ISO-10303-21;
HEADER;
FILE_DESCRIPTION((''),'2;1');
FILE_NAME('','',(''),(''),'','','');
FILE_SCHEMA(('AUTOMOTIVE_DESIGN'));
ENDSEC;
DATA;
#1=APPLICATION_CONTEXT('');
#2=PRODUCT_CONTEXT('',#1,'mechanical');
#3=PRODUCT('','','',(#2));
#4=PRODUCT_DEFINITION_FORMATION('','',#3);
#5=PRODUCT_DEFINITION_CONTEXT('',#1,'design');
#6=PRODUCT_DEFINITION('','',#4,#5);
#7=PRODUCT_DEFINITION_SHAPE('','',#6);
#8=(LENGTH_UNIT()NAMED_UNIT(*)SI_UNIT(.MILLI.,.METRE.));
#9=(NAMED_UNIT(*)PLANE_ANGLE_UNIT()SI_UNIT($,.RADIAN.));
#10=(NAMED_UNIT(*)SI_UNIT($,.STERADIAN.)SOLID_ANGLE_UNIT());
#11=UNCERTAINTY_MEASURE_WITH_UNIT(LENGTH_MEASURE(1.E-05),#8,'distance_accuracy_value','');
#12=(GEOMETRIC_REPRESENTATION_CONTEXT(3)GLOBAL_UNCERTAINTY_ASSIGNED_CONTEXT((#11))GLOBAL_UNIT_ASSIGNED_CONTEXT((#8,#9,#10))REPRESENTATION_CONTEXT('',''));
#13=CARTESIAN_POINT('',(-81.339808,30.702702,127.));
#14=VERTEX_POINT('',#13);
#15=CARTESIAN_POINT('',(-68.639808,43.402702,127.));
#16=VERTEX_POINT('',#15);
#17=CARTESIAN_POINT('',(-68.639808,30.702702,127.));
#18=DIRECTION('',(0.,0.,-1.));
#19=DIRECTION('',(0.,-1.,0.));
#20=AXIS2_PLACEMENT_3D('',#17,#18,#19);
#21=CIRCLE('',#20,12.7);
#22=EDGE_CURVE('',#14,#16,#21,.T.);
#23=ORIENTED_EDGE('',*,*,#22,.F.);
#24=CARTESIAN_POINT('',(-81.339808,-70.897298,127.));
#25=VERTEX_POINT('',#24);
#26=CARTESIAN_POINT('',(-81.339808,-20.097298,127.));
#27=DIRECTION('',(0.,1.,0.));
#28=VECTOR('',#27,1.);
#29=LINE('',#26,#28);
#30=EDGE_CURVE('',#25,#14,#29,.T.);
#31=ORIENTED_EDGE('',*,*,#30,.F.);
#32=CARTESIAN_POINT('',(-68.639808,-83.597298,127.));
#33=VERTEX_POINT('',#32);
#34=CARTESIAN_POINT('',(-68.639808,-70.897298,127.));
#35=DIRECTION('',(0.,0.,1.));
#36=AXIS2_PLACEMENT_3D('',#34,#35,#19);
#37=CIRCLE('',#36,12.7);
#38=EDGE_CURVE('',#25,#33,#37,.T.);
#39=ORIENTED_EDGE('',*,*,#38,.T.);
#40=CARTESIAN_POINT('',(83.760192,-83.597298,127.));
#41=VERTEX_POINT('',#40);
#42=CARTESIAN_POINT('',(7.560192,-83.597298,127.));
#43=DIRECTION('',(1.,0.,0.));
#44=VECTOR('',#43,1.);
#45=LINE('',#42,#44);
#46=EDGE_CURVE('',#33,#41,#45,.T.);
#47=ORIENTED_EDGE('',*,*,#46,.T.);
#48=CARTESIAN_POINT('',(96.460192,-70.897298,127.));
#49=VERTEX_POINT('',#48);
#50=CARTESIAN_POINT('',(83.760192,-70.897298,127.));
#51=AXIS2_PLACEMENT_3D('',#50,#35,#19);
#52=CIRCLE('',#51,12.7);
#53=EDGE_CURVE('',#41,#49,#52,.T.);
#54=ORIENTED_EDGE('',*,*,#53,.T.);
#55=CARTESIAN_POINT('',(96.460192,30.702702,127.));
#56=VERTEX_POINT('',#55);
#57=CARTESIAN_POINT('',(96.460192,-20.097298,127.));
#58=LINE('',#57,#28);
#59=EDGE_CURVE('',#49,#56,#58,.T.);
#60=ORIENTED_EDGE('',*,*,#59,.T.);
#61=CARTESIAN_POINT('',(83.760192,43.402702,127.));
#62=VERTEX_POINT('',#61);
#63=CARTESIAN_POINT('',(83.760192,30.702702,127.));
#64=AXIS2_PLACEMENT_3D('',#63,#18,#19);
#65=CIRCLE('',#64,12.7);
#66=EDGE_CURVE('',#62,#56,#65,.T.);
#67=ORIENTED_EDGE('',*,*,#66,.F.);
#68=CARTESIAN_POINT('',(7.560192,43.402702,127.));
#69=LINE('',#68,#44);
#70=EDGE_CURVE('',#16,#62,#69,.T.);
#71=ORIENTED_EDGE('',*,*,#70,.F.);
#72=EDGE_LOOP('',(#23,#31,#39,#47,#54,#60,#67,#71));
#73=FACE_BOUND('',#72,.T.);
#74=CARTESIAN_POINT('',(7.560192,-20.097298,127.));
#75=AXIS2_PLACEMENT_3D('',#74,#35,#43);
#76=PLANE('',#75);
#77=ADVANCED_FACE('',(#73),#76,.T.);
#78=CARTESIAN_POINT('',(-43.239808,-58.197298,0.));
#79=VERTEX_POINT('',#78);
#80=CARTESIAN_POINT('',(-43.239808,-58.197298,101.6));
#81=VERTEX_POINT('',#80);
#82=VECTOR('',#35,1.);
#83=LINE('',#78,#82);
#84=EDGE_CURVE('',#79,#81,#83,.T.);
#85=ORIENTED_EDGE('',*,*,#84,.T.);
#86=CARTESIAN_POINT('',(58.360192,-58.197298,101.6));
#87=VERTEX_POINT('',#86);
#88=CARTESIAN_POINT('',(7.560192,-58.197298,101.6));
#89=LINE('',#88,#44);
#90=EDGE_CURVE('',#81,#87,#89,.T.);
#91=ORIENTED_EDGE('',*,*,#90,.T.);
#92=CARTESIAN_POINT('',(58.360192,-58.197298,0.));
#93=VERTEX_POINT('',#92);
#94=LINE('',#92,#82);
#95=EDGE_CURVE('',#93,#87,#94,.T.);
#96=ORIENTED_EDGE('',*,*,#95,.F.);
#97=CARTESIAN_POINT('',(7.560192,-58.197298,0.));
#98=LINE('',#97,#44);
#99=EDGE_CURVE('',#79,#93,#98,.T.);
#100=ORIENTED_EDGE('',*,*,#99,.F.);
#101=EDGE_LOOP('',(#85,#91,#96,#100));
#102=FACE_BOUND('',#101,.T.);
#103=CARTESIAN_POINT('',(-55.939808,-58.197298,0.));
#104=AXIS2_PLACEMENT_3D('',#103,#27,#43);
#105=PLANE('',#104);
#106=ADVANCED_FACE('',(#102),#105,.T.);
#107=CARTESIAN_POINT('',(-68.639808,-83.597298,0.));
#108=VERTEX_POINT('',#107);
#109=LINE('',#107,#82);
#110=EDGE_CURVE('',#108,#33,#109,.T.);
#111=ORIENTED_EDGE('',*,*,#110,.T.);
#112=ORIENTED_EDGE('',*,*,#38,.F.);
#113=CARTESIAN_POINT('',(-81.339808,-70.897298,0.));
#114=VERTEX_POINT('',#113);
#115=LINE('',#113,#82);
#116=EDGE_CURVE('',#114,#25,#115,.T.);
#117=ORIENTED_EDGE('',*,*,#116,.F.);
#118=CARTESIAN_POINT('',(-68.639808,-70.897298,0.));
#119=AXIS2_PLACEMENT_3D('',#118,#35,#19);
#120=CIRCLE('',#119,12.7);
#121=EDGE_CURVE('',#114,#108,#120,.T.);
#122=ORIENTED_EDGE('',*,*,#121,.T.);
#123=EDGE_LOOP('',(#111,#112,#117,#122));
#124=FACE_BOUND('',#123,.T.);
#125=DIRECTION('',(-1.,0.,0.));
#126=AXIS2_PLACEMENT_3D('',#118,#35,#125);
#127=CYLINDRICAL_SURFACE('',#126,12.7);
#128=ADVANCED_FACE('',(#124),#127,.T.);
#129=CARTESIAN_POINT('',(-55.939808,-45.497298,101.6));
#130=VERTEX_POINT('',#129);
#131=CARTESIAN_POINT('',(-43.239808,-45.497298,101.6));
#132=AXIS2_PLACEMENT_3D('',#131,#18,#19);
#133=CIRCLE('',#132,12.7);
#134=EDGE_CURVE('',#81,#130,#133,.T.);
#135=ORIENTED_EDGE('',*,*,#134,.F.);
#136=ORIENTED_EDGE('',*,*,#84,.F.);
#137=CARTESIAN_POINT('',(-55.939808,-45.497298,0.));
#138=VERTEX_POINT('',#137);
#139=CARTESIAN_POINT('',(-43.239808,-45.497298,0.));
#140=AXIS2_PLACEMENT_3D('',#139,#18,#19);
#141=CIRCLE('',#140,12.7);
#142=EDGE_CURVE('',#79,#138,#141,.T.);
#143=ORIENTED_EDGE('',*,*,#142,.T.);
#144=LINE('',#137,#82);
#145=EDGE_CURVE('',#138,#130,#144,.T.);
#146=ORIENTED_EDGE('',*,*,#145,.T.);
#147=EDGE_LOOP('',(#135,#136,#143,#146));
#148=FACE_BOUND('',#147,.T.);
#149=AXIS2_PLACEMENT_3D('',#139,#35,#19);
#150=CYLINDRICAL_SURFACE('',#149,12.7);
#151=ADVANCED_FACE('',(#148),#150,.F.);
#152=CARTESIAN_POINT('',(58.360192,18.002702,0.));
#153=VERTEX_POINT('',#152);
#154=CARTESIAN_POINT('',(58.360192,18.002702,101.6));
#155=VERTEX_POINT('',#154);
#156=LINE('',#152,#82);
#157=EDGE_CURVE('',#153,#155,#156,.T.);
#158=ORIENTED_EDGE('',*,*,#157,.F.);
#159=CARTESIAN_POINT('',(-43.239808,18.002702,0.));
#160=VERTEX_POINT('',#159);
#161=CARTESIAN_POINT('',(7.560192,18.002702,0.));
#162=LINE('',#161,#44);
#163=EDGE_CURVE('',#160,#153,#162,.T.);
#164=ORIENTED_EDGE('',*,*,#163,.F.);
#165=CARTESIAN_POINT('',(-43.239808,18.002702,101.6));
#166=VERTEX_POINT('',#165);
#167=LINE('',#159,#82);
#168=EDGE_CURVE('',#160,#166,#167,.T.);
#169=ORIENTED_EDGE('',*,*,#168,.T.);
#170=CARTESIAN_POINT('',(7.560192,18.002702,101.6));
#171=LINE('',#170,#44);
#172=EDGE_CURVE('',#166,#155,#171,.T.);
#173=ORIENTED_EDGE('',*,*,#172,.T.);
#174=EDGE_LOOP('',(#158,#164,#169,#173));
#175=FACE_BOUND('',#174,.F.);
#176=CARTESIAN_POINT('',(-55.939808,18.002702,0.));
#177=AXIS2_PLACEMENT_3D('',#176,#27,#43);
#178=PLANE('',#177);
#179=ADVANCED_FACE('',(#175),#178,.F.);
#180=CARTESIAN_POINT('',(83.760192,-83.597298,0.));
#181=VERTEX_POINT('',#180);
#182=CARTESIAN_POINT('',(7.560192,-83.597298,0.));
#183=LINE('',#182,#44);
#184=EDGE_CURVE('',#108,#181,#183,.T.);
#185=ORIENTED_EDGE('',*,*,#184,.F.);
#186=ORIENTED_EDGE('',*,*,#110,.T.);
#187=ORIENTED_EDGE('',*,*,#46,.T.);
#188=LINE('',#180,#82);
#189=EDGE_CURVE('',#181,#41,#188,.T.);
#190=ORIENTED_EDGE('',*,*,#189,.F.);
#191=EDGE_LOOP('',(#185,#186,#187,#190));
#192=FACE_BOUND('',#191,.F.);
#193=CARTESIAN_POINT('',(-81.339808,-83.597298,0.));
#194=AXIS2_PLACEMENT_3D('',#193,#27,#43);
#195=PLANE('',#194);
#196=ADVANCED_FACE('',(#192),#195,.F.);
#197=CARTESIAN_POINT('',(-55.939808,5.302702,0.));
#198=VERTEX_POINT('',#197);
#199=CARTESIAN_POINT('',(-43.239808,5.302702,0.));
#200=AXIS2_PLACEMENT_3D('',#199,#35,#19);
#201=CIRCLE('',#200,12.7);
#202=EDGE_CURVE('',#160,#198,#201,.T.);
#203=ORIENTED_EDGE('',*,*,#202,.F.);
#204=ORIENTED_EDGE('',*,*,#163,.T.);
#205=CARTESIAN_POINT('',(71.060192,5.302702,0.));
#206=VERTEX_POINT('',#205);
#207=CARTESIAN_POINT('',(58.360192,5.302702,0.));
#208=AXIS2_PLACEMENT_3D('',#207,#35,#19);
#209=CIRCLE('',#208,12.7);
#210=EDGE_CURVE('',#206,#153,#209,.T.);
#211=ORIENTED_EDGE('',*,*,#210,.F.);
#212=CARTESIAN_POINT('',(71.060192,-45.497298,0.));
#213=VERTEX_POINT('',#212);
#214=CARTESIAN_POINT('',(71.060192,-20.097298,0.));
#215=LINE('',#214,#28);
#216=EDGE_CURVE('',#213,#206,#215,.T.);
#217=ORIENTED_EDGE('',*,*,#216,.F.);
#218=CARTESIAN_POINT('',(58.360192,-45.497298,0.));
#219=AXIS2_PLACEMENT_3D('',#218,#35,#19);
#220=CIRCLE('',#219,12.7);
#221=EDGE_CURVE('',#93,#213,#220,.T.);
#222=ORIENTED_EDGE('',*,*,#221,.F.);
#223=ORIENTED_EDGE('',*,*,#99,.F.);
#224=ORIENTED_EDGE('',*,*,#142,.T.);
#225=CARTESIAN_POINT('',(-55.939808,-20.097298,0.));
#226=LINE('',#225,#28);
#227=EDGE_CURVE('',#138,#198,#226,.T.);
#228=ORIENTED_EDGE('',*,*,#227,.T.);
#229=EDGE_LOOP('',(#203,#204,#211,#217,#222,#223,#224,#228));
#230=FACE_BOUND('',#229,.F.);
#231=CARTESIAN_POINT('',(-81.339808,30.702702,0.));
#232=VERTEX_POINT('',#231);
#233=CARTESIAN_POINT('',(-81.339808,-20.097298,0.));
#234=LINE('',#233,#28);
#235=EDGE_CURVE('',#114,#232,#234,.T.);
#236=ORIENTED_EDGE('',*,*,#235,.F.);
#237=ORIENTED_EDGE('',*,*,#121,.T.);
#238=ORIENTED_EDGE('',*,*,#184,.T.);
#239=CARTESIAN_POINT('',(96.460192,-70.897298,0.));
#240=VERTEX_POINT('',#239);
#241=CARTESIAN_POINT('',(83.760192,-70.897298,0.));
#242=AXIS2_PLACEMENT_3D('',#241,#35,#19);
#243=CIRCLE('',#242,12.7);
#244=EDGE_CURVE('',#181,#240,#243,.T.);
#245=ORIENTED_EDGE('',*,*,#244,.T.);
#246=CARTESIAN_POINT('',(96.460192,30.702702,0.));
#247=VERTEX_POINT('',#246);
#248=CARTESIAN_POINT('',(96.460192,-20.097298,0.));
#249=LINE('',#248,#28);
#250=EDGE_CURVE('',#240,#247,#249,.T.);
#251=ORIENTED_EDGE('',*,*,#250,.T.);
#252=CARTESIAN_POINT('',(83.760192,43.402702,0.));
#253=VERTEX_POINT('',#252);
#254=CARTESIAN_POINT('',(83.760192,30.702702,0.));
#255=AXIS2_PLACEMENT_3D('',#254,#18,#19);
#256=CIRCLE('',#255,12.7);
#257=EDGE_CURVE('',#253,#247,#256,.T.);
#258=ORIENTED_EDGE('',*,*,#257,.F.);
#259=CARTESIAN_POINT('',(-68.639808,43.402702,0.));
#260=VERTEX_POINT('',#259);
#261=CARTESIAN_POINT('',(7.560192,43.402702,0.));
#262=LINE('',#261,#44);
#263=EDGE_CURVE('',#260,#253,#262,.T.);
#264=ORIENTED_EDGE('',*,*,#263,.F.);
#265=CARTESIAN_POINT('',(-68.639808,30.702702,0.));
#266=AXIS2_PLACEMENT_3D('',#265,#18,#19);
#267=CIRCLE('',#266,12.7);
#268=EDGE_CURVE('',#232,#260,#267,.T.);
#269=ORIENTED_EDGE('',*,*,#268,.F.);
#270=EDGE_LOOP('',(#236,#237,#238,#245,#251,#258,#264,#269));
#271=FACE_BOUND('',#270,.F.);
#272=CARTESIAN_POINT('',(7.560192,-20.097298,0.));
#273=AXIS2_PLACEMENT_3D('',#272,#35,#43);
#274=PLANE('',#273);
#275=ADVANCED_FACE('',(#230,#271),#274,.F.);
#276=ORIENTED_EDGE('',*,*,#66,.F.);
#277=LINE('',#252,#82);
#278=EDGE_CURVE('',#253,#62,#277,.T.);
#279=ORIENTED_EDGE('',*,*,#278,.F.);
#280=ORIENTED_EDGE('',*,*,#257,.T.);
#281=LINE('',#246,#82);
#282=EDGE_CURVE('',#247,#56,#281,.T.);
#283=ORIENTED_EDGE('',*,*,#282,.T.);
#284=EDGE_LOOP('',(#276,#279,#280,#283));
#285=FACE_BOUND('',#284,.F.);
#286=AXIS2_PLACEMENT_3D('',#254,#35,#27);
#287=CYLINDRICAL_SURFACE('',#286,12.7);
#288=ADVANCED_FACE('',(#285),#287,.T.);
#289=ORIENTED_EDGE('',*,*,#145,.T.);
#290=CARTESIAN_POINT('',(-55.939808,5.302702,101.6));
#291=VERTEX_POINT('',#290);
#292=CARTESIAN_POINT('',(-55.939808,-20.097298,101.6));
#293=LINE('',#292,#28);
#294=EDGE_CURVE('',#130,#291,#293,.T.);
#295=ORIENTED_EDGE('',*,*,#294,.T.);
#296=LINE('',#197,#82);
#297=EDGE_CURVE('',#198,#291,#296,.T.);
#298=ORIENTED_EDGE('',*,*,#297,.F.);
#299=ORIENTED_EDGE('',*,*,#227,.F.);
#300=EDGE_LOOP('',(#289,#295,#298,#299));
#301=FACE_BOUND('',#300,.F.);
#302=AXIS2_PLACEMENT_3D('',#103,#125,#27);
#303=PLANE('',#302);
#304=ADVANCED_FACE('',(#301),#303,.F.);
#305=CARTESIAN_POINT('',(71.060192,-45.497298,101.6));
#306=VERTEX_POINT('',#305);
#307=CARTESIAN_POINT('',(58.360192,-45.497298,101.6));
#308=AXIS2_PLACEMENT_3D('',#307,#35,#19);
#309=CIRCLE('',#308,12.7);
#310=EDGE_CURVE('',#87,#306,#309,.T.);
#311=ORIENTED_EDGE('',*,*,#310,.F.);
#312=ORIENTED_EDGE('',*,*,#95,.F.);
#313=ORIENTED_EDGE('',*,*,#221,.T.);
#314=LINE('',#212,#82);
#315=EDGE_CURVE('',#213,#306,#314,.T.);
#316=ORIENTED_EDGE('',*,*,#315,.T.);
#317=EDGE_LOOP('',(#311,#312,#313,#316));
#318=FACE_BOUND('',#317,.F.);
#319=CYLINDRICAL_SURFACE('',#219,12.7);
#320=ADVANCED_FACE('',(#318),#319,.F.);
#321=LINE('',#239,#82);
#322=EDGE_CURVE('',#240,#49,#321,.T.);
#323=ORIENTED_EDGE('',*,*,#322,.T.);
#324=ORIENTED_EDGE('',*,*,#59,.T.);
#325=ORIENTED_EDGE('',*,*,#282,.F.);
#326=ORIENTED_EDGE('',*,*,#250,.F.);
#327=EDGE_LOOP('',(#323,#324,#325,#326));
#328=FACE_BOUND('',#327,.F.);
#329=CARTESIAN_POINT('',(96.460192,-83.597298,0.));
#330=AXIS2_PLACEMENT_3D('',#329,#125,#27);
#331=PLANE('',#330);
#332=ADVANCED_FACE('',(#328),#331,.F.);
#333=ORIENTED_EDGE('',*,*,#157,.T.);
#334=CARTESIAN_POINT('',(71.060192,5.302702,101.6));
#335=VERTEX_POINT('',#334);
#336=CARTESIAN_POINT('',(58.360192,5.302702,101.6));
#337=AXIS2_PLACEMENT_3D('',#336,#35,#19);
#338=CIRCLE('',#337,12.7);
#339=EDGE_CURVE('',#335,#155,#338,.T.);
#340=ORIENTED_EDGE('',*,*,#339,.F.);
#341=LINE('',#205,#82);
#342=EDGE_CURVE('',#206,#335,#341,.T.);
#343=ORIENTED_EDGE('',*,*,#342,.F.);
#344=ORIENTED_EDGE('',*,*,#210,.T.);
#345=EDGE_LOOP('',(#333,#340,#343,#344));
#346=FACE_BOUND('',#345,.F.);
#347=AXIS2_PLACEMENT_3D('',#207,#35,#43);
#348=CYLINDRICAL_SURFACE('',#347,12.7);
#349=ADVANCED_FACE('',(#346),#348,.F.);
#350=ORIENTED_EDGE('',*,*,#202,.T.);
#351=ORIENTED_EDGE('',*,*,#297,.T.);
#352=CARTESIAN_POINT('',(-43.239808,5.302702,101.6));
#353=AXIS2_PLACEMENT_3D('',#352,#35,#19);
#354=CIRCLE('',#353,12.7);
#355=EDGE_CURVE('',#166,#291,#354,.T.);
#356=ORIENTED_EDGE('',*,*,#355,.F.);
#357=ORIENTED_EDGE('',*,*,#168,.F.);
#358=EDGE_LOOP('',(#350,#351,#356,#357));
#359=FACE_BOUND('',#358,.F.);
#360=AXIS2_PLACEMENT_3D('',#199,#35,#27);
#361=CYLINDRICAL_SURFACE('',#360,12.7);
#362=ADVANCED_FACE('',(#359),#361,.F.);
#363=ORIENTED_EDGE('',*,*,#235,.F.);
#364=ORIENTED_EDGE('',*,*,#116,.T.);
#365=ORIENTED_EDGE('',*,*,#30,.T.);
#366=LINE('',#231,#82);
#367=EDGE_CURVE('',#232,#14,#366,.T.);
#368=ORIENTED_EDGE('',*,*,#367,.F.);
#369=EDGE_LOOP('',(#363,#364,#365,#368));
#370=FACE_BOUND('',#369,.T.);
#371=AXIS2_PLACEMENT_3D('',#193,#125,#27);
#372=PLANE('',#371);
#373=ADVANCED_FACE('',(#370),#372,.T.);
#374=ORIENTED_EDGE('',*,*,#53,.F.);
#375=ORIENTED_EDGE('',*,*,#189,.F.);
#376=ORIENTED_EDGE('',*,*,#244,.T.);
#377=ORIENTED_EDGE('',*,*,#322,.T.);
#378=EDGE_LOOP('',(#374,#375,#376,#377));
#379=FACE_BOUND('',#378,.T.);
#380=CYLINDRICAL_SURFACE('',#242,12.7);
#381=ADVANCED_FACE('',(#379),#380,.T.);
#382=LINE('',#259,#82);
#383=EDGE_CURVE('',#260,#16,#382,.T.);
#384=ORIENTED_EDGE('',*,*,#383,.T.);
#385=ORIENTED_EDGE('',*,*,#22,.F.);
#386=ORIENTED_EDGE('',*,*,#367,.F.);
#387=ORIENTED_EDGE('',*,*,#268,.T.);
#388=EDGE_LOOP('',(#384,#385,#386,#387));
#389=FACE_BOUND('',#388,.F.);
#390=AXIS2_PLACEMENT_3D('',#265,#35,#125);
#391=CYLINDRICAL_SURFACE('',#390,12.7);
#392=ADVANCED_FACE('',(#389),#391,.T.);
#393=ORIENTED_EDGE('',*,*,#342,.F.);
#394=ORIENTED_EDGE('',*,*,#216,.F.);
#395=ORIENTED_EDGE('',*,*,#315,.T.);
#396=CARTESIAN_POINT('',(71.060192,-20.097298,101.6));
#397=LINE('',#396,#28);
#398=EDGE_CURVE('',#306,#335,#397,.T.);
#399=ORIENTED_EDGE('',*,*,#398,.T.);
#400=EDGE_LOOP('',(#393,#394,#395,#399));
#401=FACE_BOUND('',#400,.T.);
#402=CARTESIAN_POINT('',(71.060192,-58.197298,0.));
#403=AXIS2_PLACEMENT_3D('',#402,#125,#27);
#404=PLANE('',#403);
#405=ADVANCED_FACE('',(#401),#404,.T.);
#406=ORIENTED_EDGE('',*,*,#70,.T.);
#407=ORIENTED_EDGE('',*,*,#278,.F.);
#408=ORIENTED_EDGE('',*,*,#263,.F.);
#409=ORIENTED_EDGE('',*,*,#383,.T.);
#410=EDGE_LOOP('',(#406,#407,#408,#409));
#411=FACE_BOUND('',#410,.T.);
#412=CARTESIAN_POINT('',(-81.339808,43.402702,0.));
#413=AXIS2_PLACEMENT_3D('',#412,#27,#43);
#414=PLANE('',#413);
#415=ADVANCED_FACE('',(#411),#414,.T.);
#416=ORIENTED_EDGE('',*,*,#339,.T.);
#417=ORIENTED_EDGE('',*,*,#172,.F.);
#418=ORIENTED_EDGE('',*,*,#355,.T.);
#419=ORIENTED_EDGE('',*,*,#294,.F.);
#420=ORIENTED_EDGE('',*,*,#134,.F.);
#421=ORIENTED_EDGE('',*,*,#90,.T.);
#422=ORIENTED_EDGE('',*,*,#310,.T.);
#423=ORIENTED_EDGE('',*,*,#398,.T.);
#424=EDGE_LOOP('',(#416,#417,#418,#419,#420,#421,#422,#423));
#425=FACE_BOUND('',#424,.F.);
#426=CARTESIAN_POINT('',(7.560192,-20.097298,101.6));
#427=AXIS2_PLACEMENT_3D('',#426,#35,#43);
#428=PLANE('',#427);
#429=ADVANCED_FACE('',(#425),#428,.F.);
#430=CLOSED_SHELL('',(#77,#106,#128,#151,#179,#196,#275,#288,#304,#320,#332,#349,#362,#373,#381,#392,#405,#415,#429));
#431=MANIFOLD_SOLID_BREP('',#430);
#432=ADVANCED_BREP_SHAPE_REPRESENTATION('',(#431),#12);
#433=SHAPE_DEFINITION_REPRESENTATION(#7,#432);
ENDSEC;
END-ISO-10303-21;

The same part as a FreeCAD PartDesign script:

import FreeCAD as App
import Part
import Sketcher
Q = App.Units.Quantity


def edges_at(feature, points):
    """Names of the edges that pass closest to the given points."""
    edges = feature.Shape.Edges
    near = lambda p: min(range(len(edges)), key=lambda i: edges[i].distToShape(Part.Vertex(*p))[0])
    return sorted({f"Edge{near(p) + 1}" for p in points})

doc = App.newDocument("Part")
body = doc.addObject("PartDesign::Body", "Body")

# Sketch on XY plane
sketch1 = doc.addObject("Sketcher::SketchObject", "Sketch")
body.addObject(sketch1)
sketch1.AttachmentSupport = (doc.XY_Plane, [""])
sketch1.MapMode = "FlatFace"
sketch1.addGeometry([
    Part.LineSegment(App.Vector(-81, 43, 0), App.Vector(-81, -84, 0)),
    Part.LineSegment(App.Vector(-81, -84, 0), App.Vector(96, -84, 0)),
    Part.LineSegment(App.Vector(96, -84, 0), App.Vector(96, 43, 0)),
    Part.LineSegment(App.Vector(96, 43, 0), App.Vector(-81, 43, 0)),
], False)
sketch1.addConstraint([
    Sketcher.Constraint("Coincident", 0, 2, 1, 1),
    Sketcher.Constraint("Coincident", 1, 2, 2, 1),
    Sketcher.Constraint("Coincident", 2, 2, 3, 1),
    Sketcher.Constraint("Coincident", 3, 2, 0, 1),
    Sketcher.Constraint("Vertical", 0),
    Sketcher.Constraint("Horizontal", 1),
    Sketcher.Constraint("Vertical", 2),
    Sketcher.Constraint("Horizontal", 3),
    Sketcher.Constraint("DistanceX", 1, 1, 1, 2, Q("7 in")),
    Sketcher.Constraint("DistanceY", 0, 2, 0, 1, Q("5 in")),
    Sketcher.Constraint("DistanceY", -1, 1, 2, 2, Q("43.402702 mm")),
    Sketcher.Constraint("DistanceX", 0, 2, -1, 1, Q("81.339808 mm")),
])
pad1 = doc.addObject("PartDesign::Pad", "Pad")
body.addObject(pad1)
pad1.Profile = sketch1
pad1.Length = Q("5 in")

# Sketch on XY plane
sketch2 = doc.addObject("Sketcher::SketchObject", "Sketch001")
body.addObject(sketch2)
sketch2.AttachmentSupport = (doc.XY_Plane, [""])
sketch2.MapMode = "FlatFace"
sketch2.addGeometry([
    Part.LineSegment(App.Vector(-56, 18, 0), App.Vector(-56, -58, 0)),
    Part.LineSegment(App.Vector(-56, -58, 0), App.Vector(71, -58, 0)),
    Part.LineSegment(App.Vector(71, -58, 0), App.Vector(71, 18, 0)),
    Part.LineSegment(App.Vector(71, 18, 0), App.Vector(-56, 18, 0)),
], False)
sketch2.addConstraint([
    Sketcher.Constraint("Coincident", 0, 2, 1, 1),
    Sketcher.Constraint("Coincident", 1, 2, 2, 1),
    Sketcher.Constraint("Coincident", 2, 2, 3, 1),
    Sketcher.Constraint("Coincident", 3, 2, 0, 1),
    Sketcher.Constraint("Vertical", 0),
    Sketcher.Constraint("Horizontal", 1),
    Sketcher.Constraint("Vertical", 2),
    Sketcher.Constraint("Horizontal", 3),
    Sketcher.Constraint("DistanceX", 1, 1, 1, 2, Q("5 in")),
    Sketcher.Constraint("DistanceY", 0, 2, 0, 1, Q("3 in")),
    Sketcher.Constraint("DistanceY", 0, 2, -1, 1, Q("58.197298 mm")),
    Sketcher.Constraint("DistanceX", -1, 1, 1, 2, Q("71.060192 mm")),
])
pocket1 = doc.addObject("PartDesign::Pocket", "Pocket")
body.addObject(pocket1)
pocket1.Profile = sketch2
pocket1.Length = Q("4 in")
pocket1.Reversed = True
doc.recompute()

fillet = doc.addObject("PartDesign::Fillet", "Fillet")
body.addObject(fillet)
fillet.Base = (pocket1, edges_at(pocket1, [
    (-55.94, 18.003, 50.8),
    (-55.94, -58.197, 50.8),
    (71.06, 18.003, 50.8),
    (71.06, -58.197, 50.8),
]))
fillet.Radius = Q("0.5 in")
doc.recompute()

fillet2 = doc.addObject("PartDesign::Fillet", "Fillet001")
body.addObject(fillet2)
fillet2.Base = (fillet, edges_at(fillet, [
    (96.46, -83.597, 63.5),
    (96.46, 43.403, 63.5),
    (-81.34, -83.597, 63.5),
    (-81.34, 43.403, 63.5),
]))
fillet2.Radius = Q("0.5 in")

doc.recompute()
